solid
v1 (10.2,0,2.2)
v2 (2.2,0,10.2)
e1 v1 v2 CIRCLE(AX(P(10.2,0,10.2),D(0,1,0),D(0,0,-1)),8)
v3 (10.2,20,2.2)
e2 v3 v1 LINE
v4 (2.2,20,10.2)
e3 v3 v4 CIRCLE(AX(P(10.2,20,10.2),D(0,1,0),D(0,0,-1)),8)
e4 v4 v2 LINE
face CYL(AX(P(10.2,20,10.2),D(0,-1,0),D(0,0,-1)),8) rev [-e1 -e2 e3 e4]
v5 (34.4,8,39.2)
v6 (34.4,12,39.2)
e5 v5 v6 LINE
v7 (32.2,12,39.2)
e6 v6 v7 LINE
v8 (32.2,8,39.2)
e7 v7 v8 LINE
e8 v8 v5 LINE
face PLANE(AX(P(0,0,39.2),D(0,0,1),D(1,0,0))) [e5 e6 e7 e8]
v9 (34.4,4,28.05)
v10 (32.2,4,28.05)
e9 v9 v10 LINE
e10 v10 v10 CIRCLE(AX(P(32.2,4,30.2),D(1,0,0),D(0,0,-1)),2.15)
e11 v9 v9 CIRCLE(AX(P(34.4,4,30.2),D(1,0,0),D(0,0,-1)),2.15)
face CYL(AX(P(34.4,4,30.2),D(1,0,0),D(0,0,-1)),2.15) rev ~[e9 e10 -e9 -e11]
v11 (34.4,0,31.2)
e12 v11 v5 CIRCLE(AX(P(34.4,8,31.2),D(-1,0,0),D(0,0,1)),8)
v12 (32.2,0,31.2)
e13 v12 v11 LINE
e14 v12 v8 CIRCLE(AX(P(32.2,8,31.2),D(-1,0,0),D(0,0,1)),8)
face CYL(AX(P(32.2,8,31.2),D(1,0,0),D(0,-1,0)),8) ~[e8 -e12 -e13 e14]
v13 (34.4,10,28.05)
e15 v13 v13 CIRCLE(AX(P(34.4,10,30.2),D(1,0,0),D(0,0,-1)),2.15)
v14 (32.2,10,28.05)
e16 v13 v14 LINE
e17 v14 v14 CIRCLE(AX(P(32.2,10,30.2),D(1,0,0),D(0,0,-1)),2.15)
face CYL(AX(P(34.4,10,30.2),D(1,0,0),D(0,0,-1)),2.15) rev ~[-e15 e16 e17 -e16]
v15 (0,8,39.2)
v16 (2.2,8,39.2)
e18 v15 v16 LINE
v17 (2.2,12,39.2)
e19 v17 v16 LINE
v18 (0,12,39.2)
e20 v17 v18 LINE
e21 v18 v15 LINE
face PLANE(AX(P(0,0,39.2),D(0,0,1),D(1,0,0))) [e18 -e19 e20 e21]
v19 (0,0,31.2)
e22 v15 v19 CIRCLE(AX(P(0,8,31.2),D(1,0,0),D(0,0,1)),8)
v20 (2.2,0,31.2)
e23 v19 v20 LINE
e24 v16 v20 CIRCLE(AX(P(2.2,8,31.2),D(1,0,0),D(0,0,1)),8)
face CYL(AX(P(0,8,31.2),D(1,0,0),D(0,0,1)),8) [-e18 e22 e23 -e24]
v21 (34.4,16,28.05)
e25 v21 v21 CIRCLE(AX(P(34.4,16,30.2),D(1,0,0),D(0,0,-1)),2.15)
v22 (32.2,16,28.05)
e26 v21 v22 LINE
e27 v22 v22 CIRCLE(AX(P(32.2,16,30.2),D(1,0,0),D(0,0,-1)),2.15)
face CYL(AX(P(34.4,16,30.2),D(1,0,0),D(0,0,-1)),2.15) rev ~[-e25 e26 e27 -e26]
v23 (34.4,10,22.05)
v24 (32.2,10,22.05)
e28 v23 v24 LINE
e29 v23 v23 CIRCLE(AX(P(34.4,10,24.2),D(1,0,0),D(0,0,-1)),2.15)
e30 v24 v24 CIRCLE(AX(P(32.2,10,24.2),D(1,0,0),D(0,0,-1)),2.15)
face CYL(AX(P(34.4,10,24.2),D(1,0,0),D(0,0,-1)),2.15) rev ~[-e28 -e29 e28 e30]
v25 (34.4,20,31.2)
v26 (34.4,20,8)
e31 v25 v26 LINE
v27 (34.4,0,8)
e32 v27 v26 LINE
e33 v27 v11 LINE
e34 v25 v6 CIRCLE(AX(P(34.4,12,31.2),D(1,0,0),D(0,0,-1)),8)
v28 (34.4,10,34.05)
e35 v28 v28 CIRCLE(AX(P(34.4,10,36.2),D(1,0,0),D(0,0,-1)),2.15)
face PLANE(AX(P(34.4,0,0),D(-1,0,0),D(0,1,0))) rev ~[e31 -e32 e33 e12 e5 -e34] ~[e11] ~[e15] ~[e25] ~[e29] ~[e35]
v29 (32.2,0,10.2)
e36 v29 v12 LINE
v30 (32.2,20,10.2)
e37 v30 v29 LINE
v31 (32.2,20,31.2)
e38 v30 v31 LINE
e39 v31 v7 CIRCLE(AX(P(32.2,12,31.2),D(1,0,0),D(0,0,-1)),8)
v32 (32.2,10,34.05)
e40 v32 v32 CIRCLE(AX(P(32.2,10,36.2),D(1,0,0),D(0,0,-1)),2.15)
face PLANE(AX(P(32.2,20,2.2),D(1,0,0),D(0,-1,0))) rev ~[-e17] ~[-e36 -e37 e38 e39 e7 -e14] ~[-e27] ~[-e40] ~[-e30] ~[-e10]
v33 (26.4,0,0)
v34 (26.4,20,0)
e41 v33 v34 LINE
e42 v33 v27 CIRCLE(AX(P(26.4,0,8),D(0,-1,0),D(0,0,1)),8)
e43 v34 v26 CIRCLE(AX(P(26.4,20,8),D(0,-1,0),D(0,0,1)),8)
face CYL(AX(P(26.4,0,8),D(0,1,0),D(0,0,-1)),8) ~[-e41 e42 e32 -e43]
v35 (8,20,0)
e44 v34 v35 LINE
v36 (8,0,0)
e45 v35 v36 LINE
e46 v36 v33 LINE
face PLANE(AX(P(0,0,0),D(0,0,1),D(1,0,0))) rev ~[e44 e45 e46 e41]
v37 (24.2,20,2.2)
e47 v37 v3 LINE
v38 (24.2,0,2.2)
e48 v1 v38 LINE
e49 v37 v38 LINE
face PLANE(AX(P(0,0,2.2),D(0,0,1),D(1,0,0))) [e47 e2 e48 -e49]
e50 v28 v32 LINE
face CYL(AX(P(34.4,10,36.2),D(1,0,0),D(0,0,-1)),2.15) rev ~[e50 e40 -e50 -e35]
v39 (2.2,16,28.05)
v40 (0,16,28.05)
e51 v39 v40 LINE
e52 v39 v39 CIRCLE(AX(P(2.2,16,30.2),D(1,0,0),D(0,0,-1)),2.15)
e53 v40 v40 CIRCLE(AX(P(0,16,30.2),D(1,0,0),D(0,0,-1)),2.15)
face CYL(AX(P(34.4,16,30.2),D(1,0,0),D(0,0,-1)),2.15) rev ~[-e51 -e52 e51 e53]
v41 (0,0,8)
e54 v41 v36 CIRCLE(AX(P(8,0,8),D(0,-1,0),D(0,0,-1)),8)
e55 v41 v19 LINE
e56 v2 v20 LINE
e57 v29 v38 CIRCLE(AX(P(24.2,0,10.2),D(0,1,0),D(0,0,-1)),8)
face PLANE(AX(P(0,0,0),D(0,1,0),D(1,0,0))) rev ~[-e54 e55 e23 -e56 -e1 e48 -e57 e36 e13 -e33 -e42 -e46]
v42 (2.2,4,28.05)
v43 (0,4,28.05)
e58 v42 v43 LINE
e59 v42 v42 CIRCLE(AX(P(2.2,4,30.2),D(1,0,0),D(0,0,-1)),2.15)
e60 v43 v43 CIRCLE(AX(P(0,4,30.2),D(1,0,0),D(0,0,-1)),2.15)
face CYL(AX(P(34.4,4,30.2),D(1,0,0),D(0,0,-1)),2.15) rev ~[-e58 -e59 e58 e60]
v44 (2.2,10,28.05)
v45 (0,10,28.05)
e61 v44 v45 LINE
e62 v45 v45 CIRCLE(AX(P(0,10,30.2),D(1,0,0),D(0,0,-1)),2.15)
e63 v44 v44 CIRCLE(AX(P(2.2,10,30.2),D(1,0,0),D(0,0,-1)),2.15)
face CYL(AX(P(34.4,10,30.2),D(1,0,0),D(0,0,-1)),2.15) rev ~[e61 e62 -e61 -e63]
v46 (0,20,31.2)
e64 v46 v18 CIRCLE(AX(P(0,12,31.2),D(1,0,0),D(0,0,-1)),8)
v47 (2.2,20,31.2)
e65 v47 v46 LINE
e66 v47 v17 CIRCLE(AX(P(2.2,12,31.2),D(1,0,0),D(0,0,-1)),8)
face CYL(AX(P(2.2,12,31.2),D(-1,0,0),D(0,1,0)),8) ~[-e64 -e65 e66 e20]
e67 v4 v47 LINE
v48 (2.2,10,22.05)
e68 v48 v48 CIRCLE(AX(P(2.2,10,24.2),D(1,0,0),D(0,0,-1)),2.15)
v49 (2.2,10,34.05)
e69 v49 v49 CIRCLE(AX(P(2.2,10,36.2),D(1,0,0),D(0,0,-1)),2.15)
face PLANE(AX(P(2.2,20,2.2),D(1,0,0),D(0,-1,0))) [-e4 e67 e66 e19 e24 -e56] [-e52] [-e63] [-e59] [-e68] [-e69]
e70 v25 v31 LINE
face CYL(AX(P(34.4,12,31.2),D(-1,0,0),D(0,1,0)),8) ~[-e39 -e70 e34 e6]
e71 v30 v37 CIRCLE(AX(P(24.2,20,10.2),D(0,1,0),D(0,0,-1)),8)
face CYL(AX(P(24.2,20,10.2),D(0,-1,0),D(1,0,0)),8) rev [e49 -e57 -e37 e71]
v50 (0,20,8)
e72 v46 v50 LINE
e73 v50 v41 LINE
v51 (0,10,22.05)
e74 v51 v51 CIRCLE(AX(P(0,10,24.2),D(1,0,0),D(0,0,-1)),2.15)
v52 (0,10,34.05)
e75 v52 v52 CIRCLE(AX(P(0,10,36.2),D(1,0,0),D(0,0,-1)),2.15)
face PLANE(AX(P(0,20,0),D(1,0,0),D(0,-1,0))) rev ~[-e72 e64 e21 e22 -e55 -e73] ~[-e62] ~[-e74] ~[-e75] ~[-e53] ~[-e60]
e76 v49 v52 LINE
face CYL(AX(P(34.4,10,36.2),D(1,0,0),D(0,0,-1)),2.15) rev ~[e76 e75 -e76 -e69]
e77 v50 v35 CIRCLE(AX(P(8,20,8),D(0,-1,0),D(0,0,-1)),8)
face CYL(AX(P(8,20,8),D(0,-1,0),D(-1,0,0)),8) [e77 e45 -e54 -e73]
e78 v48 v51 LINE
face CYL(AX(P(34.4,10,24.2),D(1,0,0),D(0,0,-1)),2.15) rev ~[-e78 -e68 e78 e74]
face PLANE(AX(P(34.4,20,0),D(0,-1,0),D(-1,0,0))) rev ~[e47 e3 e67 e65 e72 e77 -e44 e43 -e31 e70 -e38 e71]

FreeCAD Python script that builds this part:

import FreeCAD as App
import Part
import Sketcher

V = App.Vector
Q = App.Units.Quantity


def edges_at(feature, points):
    """Names of the edges that pass closest to the given points."""
    edges = feature.Shape.Edges
    near = lambda p: min(range(len(edges)), key=lambda i: edges[i].distToShape(Part.Vertex(*p))[0])
    return sorted({f"Edge{near(p) + 1}" for p in points})


def add_polygon(sketch, points):
    """Adds a closed chain of lines whose ends are joined by coincident constraints."""
    first, n = sketch.GeometryCount, len(points)
    for a, b in zip(points, points[1:] + points[:1]):
        sketch.addGeometry(Part.LineSegment(App.Vector(*a, 0), App.Vector(*b, 0)), False)
    for i in range(n):
        sketch.addConstraint(Sketcher.Constraint("Coincident", first + i, 2, first + (i + 1) % n, 1))

doc = App.newDocument("Part")
body = doc.addObject("PartDesign::Body", "Body")

sketch1 = body.newObject("Sketcher::SketchObject", "Sketch")
sketch1.AttachmentSupport = (doc.getObject("XY_Plane"), [""])
sketch1.MapMode = "FlatFace"
add_polygon(sketch1, [(0, 20), (0, 0), (34, 0), (34, 20)])
sketch1.addConstraint([
    Sketcher.Constraint("Vertical", 0),
    Sketcher.Constraint("Horizontal", 1),
    Sketcher.Constraint("Vertical", 2),
    Sketcher.Constraint("Horizontal", 3),
    Sketcher.Constraint("Coincident", 0, 2, -1, 1),
    Sketcher.Constraint("DistanceY", 0, 2, 0, 1, Q("20 mm")),
    Sketcher.Constraint("DistanceX", 1, 1, 1, 2, Q("34.4 mm")),
])
pad1 = body.newObject("PartDesign::Pad", "Pad")
pad1.Profile = sketch1
pad1.Length = 2.2

sketch2 = body.newObject("Sketcher::SketchObject", "Sketch001")
sketch2.AttachmentSupport = (doc.getObject("XY_Plane"), [""])
sketch2.MapMode = "FlatFace"
sketch2.AttachmentOffset = App.Placement(V(0, 0, 2.2), App.Rotation())
add_polygon(sketch2, [(0, 20), (0, 0), (2.2, 0), (2.2, 20)])
add_polygon(sketch2, [(32.2, 20), (32.2, 0), (34.4, 0), (34.4, 20)])
sketch2.addConstraint([
    Sketcher.Constraint("Vertical", 0),
    Sketcher.Constraint("Horizontal", 1),
    Sketcher.Constraint("Vertical", 2),
    Sketcher.Constraint("Horizontal", 3),
    Sketcher.Constraint("Vertical", 4),
    Sketcher.Constraint("Horizontal", 5),
    Sketcher.Constraint("Vertical", 6),
    Sketcher.Constraint("Horizontal", 7),
    Sketcher.Constraint("Coincident", 0, 2, -1, 1),
    Sketcher.Constraint("PointOnObject", 4, 2, -1),
    Sketcher.Constraint("Horizontal", 3, 2, 6, 2),
    Sketcher.Constraint("Equal", 3, 5),
    Sketcher.Constraint("DistanceX", 1, 1, 1, 2, Q("2.2 mm")),
    Sketcher.Constraint("DistanceY", 0, 2, 0, 1, Q("20 mm")),
    Sketcher.Constraint("DistanceX", 1, 2, 4, 2, Q("30 mm")),
])
pad2 = body.newObject("PartDesign::Pad", "Pad001")
pad2.Profile = sketch2
pad2.Length = 37

sketch3 = body.newObject("Sketcher::SketchObject", "Sketch002")
sketch3.AttachmentSupport = (doc.getObject("YZ_Plane"), [""])
sketch3.MapMode = "FlatFace"
sketch3.AttachmentOffset = App.Placement(V(0, 0, 34.4), App.Rotation())
sketch3.addGeometry([
    Part.Circle(V(10, 30.2, 0), V(0, 0, 1), 2.1),
    Part.Circle(V(10, 24.2, 0), V(0, 0, 1), 2.1),
    Part.Circle(V(10, 36.2, 0), V(0, 0, 1), 2.1),
    Part.Circle(V(16, 30.2, 0), V(0, 0, 1), 2.1),
    Part.Circle(V(4, 30.2, 0), V(0, 0, 1), 2.1),
], False)
sketch3.addConstraint([
    Sketcher.Constraint("Equal", 0, 1),
    Sketcher.Constraint("Equal", 1, 2),
    Sketcher.Constraint("Equal", 2, 3),
    Sketcher.Constraint("Equal", 3, 4),
    Sketcher.Constraint("Horizontal", 0, 3, 3, 3),
    Sketcher.Constraint("Horizontal", 3, 3, 4, 3),
    Sketcher.Constraint("Vertical", 0, 3, 1, 3),
    Sketcher.Constraint("Vertical", 1, 3, 2, 3),
    Sketcher.Constraint("Diameter", 0, Q("4.3 mm")),
    Sketcher.Constraint("DistanceY", 1, 3, 0, 3, Q("6 mm")),
    Sketcher.Constraint("DistanceY", 0, 3, 2, 3, Q("6 mm")),
    Sketcher.Constraint("DistanceX", 0, 3, 3, 3, Q("6 mm")),
    Sketcher.Constraint("DistanceX", 4, 3, 0, 3, Q("6 mm")),
    Sketcher.Constraint("DistanceX", -1, 1, 0, 3, Q("10 mm")),
    Sketcher.Constraint("DistanceY", -1, 1, 0, 3, Q("30.2 mm")),
])
pocket1 = body.newObject("PartDesign::Pocket", "Pocket")
pocket1.Profile = sketch3
pocket1.Type = "ThroughAll"
doc.recompute()

fillet = body.newObject("PartDesign::Fillet", "Fillet")
fillet.Base = (pocket1, edges_at(pocket1, [
    (33.3, 20, 39.2),
    (1.1, 20, 39.2),
    (1.1, 0, 39.2),
    (33.3, 0, 39.2),
]))
fillet.Radius = 8
doc.recompute()

fillet2 = body.newObject("PartDesign::Fillet", "Fillet001")
fillet2.Base = (fillet, edges_at(fillet, [
    (2.2, 10, 2.2),
    (0, 10, 0),
    (34.4, 10, 0),
    (32.2, 10, 2.2),
]))
fillet2.Radius = 8

doc.recompute()
